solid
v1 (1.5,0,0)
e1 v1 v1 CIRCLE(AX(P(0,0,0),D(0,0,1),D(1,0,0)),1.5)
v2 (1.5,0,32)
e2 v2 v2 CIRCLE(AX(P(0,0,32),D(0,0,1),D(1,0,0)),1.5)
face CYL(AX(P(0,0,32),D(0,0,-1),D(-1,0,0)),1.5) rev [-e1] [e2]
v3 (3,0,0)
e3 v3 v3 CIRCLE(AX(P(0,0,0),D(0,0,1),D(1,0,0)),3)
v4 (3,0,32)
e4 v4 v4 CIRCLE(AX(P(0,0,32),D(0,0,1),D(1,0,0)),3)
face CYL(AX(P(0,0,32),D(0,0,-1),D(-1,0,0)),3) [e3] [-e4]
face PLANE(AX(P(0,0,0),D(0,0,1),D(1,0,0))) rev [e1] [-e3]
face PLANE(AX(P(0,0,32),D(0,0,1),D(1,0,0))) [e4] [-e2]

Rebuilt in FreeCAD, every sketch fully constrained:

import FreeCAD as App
import Part
import Sketcher
Q = App.Units.Quantity

doc = App.newDocument("Part")
body = doc.addObject("PartDesign::Body", "Body")

sketch1 = doc.addObject("Sketcher::SketchObject", "Sketch")
body.addObject(sketch1)
sketch1.AttachmentSupport = (doc.XY_Plane, [""])
sketch1.MapMode = "FlatFace"
sketch1.addGeometry([
    Part.Circle(App.Vector(0, 0, 0), App.Vector(0, 0, 1), 3),
    Part.Circle(App.Vector(0, 0, 0), App.Vector(0, 0, 1), 1.5),
], False)
sketch1.addConstraint([
    Sketcher.Constraint("Coincident", 0, 3, -1, 1),
    Sketcher.Constraint("Coincident", 1, 3, -1, 1),
    Sketcher.Constraint("Diameter", 0, Q("6 mm")),
    Sketcher.Constraint("Diameter", 1, Q("3 mm")),
])
pad1 = doc.addObject("PartDesign::Pad", "Pad")
body.addObject(pad1)
pad1.Profile = sketch1
pad1.Length = 32

doc.recompute()
